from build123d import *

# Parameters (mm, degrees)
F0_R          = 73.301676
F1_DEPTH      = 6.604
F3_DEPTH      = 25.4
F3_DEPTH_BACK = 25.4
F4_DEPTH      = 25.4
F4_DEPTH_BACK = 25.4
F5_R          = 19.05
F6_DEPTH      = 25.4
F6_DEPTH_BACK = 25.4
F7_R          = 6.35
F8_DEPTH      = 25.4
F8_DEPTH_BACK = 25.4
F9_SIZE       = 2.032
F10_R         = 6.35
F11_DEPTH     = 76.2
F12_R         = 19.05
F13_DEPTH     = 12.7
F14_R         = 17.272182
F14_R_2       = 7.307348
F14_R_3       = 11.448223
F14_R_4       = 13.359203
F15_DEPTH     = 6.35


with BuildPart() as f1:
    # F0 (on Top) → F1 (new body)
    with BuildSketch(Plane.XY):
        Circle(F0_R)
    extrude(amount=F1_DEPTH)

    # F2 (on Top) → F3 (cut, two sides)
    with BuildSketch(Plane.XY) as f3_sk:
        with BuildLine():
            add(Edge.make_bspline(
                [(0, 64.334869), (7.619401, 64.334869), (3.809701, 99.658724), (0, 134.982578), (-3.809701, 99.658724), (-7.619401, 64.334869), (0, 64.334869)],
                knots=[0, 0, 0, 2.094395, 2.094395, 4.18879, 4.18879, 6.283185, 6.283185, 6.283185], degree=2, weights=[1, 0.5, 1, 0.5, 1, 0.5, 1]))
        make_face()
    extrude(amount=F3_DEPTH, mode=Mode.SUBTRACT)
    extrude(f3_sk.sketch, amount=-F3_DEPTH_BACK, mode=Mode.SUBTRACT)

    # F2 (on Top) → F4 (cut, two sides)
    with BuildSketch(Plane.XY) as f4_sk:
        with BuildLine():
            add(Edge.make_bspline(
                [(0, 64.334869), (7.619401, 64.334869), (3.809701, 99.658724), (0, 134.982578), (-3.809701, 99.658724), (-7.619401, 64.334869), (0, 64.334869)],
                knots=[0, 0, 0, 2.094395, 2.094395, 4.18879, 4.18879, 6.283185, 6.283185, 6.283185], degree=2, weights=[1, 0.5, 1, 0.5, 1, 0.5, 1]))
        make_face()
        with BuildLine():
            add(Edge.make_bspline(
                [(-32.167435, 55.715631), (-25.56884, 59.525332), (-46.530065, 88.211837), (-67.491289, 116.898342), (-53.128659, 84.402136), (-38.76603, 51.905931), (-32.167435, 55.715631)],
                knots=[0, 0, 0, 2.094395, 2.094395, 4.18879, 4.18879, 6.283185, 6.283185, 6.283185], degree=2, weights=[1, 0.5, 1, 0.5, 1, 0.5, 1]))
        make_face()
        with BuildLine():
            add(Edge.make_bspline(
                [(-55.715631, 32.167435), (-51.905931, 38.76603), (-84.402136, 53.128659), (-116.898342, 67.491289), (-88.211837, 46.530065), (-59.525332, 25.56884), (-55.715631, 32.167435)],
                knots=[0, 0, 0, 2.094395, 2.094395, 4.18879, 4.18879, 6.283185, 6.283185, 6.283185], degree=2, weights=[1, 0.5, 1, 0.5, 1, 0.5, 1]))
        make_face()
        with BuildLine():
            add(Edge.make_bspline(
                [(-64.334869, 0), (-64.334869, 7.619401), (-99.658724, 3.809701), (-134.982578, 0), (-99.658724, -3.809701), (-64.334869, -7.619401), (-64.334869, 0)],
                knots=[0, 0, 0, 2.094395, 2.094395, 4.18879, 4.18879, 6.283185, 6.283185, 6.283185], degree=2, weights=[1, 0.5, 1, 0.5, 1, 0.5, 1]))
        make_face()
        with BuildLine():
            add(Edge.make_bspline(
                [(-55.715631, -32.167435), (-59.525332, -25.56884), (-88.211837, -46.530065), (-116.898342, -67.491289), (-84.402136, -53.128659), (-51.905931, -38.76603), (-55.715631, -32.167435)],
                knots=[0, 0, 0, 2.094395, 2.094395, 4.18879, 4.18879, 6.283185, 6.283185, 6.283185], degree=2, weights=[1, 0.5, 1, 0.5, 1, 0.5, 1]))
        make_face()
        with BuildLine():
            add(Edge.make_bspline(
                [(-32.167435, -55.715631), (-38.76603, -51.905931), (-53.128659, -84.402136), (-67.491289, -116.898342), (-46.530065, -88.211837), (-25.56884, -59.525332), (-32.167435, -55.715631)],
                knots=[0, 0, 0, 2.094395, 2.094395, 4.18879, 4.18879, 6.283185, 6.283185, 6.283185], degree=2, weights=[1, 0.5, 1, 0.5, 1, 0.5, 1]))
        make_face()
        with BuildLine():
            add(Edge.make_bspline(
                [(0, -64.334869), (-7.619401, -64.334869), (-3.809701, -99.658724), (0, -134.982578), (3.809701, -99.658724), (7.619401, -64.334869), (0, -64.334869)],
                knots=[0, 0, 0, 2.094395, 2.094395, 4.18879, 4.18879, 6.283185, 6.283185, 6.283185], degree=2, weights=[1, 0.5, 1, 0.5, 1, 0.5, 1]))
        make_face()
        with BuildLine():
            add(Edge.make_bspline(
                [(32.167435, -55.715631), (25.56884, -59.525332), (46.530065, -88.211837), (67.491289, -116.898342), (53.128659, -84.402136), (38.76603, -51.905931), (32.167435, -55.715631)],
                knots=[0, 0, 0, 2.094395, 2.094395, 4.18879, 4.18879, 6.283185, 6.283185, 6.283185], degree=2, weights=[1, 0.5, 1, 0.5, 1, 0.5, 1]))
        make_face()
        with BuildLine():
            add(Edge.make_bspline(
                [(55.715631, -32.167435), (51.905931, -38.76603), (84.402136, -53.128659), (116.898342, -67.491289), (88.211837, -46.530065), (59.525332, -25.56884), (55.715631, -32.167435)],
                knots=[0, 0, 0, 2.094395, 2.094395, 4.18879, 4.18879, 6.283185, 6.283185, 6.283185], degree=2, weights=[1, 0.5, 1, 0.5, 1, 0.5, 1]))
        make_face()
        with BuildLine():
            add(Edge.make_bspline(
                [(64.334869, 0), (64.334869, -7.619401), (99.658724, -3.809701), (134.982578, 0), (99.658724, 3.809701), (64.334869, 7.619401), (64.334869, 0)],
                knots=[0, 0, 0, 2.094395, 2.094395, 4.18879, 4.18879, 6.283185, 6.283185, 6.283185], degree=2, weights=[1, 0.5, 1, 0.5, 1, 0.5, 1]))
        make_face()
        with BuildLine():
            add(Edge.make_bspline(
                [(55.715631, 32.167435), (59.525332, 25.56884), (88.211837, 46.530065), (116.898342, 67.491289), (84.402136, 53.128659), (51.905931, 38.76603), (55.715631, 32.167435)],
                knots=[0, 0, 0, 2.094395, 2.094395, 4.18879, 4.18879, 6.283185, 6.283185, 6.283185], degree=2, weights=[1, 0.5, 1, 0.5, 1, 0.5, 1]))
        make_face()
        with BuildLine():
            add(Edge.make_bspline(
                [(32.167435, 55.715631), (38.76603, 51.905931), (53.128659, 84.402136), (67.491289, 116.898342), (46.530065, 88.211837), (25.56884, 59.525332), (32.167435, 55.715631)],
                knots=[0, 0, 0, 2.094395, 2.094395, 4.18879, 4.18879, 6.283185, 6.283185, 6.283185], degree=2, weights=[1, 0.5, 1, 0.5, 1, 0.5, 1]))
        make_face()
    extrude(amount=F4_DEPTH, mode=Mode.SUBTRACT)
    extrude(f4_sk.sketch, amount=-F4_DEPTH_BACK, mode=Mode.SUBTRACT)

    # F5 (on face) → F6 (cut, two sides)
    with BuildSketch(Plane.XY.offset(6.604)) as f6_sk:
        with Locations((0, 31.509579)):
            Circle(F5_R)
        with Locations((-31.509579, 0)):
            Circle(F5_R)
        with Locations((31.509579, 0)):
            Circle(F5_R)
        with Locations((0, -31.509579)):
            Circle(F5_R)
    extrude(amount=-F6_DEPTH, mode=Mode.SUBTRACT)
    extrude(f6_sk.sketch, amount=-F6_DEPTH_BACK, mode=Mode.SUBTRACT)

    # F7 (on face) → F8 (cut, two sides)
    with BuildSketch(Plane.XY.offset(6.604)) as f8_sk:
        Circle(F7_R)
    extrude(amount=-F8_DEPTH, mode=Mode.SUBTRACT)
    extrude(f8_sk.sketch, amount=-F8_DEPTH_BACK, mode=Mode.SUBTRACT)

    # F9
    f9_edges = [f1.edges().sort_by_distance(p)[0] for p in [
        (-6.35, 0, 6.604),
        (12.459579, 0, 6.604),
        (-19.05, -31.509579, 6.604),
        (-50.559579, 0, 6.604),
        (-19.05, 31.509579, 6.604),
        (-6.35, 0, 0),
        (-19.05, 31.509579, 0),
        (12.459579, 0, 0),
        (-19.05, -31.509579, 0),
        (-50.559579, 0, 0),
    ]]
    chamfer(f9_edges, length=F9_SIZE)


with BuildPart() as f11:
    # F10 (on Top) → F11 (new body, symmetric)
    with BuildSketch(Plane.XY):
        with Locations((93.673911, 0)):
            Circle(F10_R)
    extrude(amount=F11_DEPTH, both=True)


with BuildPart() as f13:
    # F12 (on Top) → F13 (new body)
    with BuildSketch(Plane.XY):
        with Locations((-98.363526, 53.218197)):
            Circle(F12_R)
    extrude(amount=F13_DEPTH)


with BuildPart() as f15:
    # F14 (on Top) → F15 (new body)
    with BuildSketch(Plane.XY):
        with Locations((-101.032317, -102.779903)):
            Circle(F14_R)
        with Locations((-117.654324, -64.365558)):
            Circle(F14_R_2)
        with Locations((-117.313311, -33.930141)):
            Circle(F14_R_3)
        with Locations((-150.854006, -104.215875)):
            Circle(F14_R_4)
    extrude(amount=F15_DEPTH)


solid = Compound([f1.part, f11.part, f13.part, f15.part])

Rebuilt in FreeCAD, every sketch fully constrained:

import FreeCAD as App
import Part
import Sketcher
Q = App.Units.Quantity


def edges_at(feature, points):
    """Names of the edges that pass closest to the given points."""
    edges = feature.Shape.Edges
    near = lambda p: min(range(len(edges)), key=lambda i: edges[i].distToShape(Part.Vertex(*p))[0])
    return sorted({f"Edge{near(p) + 1}" for p in points})

doc = App.newDocument("Part")
body = doc.addObject("PartDesign::Body", "Body")

sketch1 = body.newObject("Sketcher::SketchObject", "Sketch")
sketch1.AttachmentSupport = (doc.getObject("XY_Plane"), [""])
sketch1.MapMode = "FlatFace"
sketch1.addGeometry(Part.Circle(App.Vector(0, 0, 0), App.Vector(0, 0, 1), 73), False)
sketch1.addConstraint(Sketcher.Constraint("Coincident", 0, 3, -1, 1))
sketch1.addConstraint(Sketcher.Constraint("Diameter", 0, Q("146.603352 mm")))
pad1 = body.newObject("PartDesign::Pad", "Pad")
pad1.Profile = sketch1
pad1.Length = Q("0.26 in")

sketch2 = body.newObject("Sketcher::SketchObject", "Sketch001")
sketch2.AttachmentSupport = (doc.getObject("XY_Plane"), [""])
sketch2.MapMode = "FlatFace"
sketch2.addGeometry(Part.BSplineCurve([App.Vector(0, 64.334869, 0), App.Vector(7.619401, 64.334869, 0), App.Vector(3.809701, 99.658724, 0), App.Vector(0, 134.982578, 0), App.Vector(-3.809701, 99.658724, 0), App.Vector(-7.619401, 64.334869, 0), App.Vector(0, 64.334869, 0)], [3, 2, 2, 3], [0, 2.094395, 4.18879, 6.283185], False, 2, [1, 0.5, 1, 0.5, 1, 0.5, 1], False), False)
sketch2.addConstraint(Sketcher.Constraint("Block", 0))
pocket1 = body.newObject("PartDesign::Pocket", "Pocket")
pocket1.Profile = sketch2
pocket1.Type = "ThroughAll"
pocket1.Midplane = True

sketch3 = body.newObject("Sketcher::SketchObject", "Sketch002")
sketch3.AttachmentSupport = (doc.getObject("XY_Plane"), [""])
sketch3.MapMode = "FlatFace"
sketch3.addGeometry(Part.BSplineCurve([App.Vector(0, 64.334869, 0), App.Vector(7.619401, 64.334869, 0), App.Vector(3.809701, 99.658724, 0), App.Vector(0, 134.982578, 0), App.Vector(-3.809701, 99.658724, 0), App.Vector(-7.619401, 64.334869, 0), App.Vector(0, 64.334869, 0)], [3, 2, 2, 3], [0, 2.094395, 4.18879, 6.283185], False, 2, [1, 0.5, 1, 0.5, 1, 0.5, 1], False), False)
sketch3.addGeometry(Part.BSplineCurve([App.Vector(-32.167435, 55.715631, 0), App.Vector(-25.56884, 59.525332, 0), App.Vector(-46.530065, 88.211837, 0), App.Vector(-67.491289, 116.898342, 0), App.Vector(-53.128659, 84.402136, 0), App.Vector(-38.76603, 51.905931, 0), App.Vector(-32.167435, 55.715631, 0)], [3, 2, 2, 3], [0, 2.094395, 4.18879, 6.283185], False, 2, [1, 0.5, 1, 0.5, 1, 0.5, 1], False), False)
sketch3.addGeometry(Part.BSplineCurve([App.Vector(-55.715631, 32.167435, 0), App.Vector(-51.905931, 38.76603, 0), App.Vector(-84.402136, 53.128659, 0), App.Vector(-116.898342, 67.491289, 0), App.Vector(-88.211837, 46.530065, 0), App.Vector(-59.525332, 25.56884, 0), App.Vector(-55.715631, 32.167435, 0)], [3, 2, 2, 3], [0, 2.094395, 4.18879, 6.283185], False, 2, [1, 0.5, 1, 0.5, 1, 0.5, 1], False), False)
sketch3.addGeometry(Part.BSplineCurve([App.Vector(-64.334869, 0, 0), App.Vector(-64.334869, 7.619401, 0), App.Vector(-99.658724, 3.809701, 0), App.Vector(-134.982578, 0, 0), App.Vector(-99.658724, -3.809701, 0), App.Vector(-64.334869, -7.619401, 0), App.Vector(-64.334869, 0, 0)], [3, 2, 2, 3], [0, 2.094395, 4.18879, 6.283185], False, 2, [1, 0.5, 1, 0.5, 1, 0.5, 1], False), False)
sketch3.addGeometry(Part.BSplineCurve([App.Vector(-55.715631, -32.167435, 0), App.Vector(-59.525332, -25.56884, 0), App.Vector(-88.211837, -46.530065, 0), App.Vector(-116.898342, -67.491289, 0), App.Vector(-84.402136, -53.128659, 0), App.Vector(-51.905931, -38.76603, 0), App.Vector(-55.715631, -32.167435, 0)], [3, 2, 2, 3], [0, 2.094395, 4.18879, 6.283185], False, 2, [1, 0.5, 1, 0.5, 1, 0.5, 1], False), False)
sketch3.addGeometry(Part.BSplineCurve([App.Vector(-32.167435, -55.715631, 0), App.Vector(-38.76603, -51.905931, 0), App.Vector(-53.128659, -84.402136, 0), App.Vector(-67.491289, -116.898342, 0), App.Vector(-46.530065, -88.211837, 0), App.Vector(-25.56884, -59.525332, 0), App.Vector(-32.167435, -55.715631, 0)], [3, 2, 2, 3], [0, 2.094395, 4.18879, 6.283185], False, 2, [1, 0.5, 1, 0.5, 1, 0.5, 1], False), False)
sketch3.addGeometry(Part.BSplineCurve([App.Vector(0, -64.334869, 0), App.Vector(-7.619401, -64.334869, 0), App.Vector(-3.809701, -99.658724, 0), App.Vector(0, -134.982578, 0), App.Vector(3.809701, -99.658724, 0), App.Vector(7.619401, -64.334869, 0), App.Vector(0, -64.334869, 0)], [3, 2, 2, 3], [0, 2.094395, 4.18879, 6.283185], False, 2, [1, 0.5, 1, 0.5, 1, 0.5, 1], False), False)
sketch3.addGeometry(Part.BSplineCurve([App.Vector(32.167435, -55.715631, 0), App.Vector(25.56884, -59.525332, 0), App.Vector(46.530065, -88.211837, 0), App.Vector(67.491289, -116.898342, 0), App.Vector(53.128659, -84.402136, 0), App.Vector(38.76603, -51.905931, 0), App.Vector(32.167435, -55.715631, 0)], [3, 2, 2, 3], [0, 2.094395, 4.18879, 6.283185], False, 2, [1, 0.5, 1, 0.5, 1, 0.5, 1], False), False)
sketch3.addGeometry(Part.BSplineCurve([App.Vector(55.715631, -32.167435, 0), App.Vector(51.905931, -38.76603, 0), App.Vector(84.402136, -53.128659, 0), App.Vector(116.898342, -67.491289, 0), App.Vector(88.211837, -46.530065, 0), App.Vector(59.525332, -25.56884, 0), App.Vector(55.715631, -32.167435, 0)], [3, 2, 2, 3], [0, 2.094395, 4.18879, 6.283185], False, 2, [1, 0.5, 1, 0.5, 1, 0.5, 1], False), False)
sketch3.addGeometry(Part.BSplineCurve([App.Vector(64.334869, 0, 0), App.Vector(64.334869, -7.619401, 0), App.Vector(99.658724, -3.809701, 0), App.Vector(134.982578, 0, 0), App.Vector(99.658724, 3.809701, 0), App.Vector(64.334869, 7.619401, 0), App.Vector(64.334869, 0, 0)], [3, 2, 2, 3], [0, 2.094395, 4.18879, 6.283185], False, 2, [1, 0.5, 1, 0.5, 1, 0.5, 1], False), False)
sketch3.addGeometry(Part.BSplineCurve([App.Vector(55.715631, 32.167435, 0), App.Vector(59.525332, 25.56884, 0), App.Vector(88.211837, 46.530065, 0), App.Vector(116.898342, 67.491289, 0), App.Vector(84.402136, 53.128659, 0), App.Vector(51.905931, 38.76603, 0), App.Vector(55.715631, 32.167435, 0)], [3, 2, 2, 3], [0, 2.094395, 4.18879, 6.283185], False, 2, [1, 0.5, 1, 0.5, 1, 0.5, 1], False), False)
sketch3.addGeometry(Part.BSplineCurve([App.Vector(32.167435, 55.715631, 0), App.Vector(38.76603, 51.905931, 0), App.Vector(53.128659, 84.402136, 0), App.Vector(67.491289, 116.898342, 0), App.Vector(46.530065, 88.211837, 0), App.Vector(25.56884, 59.525332, 0), App.Vector(32.167435, 55.715631, 0)], [3, 2, 2, 3], [0, 2.094395, 4.18879, 6.283185], False, 2, [1, 0.5, 1, 0.5, 1, 0.5, 1], False), False)
sketch3.addConstraint(Sketcher.Constraint("Block", 0))
sketch3.addConstraint(Sketcher.Constraint("Block", 1))
sketch3.addConstraint(Sketcher.Constraint("Block", 2))
sketch3.addConstraint(Sketcher.Constraint("Block", 3))
sketch3.addConstraint(Sketcher.Constraint("Block", 4))
sketch3.addConstraint(Sketcher.Constraint("Block", 5))
sketch3.addConstraint(Sketcher.Constraint("Block", 6))
sketch3.addConstraint(Sketcher.Constraint("Block", 7))
sketch3.addConstraint(Sketcher.Constraint("Block", 8))
sketch3.addConstraint(Sketcher.Constraint("Block", 9))
sketch3.addConstraint(Sketcher.Constraint("Block", 10))
sketch3.addConstraint(Sketcher.Constraint("Block", 11))
pocket2 = body.newObject("PartDesign::Pocket", "Pocket001")
pocket2.Profile = sketch3
pocket2.Type = "ThroughAll"
pocket2.Midplane = True

sketch4 = body.newObject("Sketcher::SketchObject", "Sketch003")
sketch4.AttachmentSupport = (doc.getObject("XY_Plane"), [""])
sketch4.MapMode = "FlatFace"
sketch4.AttachmentOffset = App.Placement(App.Vector(0, 0, 0.26 * 25.4), App.Rotation())
sketch4.addGeometry(Part.Circle(App.Vector(0, 32, 0), App.Vector(0, 0, 1), 19), False)
sketch4.addGeometry(Part.Circle(App.Vector(-32, 0, 0), App.Vector(0, 0, 1), 19), False)
sketch4.addGeometry(Part.Circle(App.Vector(32, 0, 0), App.Vector(0, 0, 1), 19), False)
sketch4.addGeometry(Part.Circle(App.Vector(0, -32, 0), App.Vector(0, 0, 1), 19), False)
sketch4.addConstraint(Sketcher.Constraint("Equal", 0, 1))
sketch4.addConstraint(Sketcher.Constraint("Equal", 1, 2))
sketch4.addConstraint(Sketcher.Constraint("Equal", 2, 3))
sketch4.addConstraint(Sketcher.Constraint("Symmetric", 1, 3, 2, 3, -1, 1))
sketch4.addConstraint(Sketcher.Constraint("Symmetric", 0, 3, 3, 3, -1, 1))
sketch4.addConstraint(Sketcher.Constraint("PointOnObject", 0, 3, -2))
sketch4.addConstraint(Sketcher.Constraint("PointOnObject", 1, 3, -1))
sketch4.addConstraint(Sketcher.Constraint("Diameter", 0, Q("1.5 in")))
sketch4.addConstraint(Sketcher.Constraint("DistanceY", -1, 1, 0, 3, Q("31.509579 mm")))
sketch4.addConstraint(Sketcher.Constraint("DistanceX", 1, 3, -1, 1, Q("31.509579 mm")))
pocket3 = body.newObject("PartDesign::Pocket", "Pocket002")
pocket3.Profile = sketch4
pocket3.Length = Q("1 in")
pocket4 = body.newObject("PartDesign::Pocket", "Pocket003")
pocket4.Profile = sketch4
pocket4.Length = Q("1 in")

sketch5 = body.newObject("Sketcher::SketchObject", "Sketch004")
sketch5.AttachmentSupport = (doc.getObject("XY_Plane"), [""])
sketch5.MapMode = "FlatFace"
sketch5.AttachmentOffset = App.Placement(App.Vector(0, 0, 0.26 * 25.4), App.Rotation())
sketch5.addGeometry(Part.Circle(App.Vector(0, 0, 0), App.Vector(0, 0, 1), 6), False)
sketch5.addConstraint(Sketcher.Constraint("Coincident", 0, 3, -1, 1))
sketch5.addConstraint(Sketcher.Constraint("Diameter", 0, Q("0.5 in")))
pocket5 = body.newObject("PartDesign::Pocket", "Pocket004")
pocket5.Profile = sketch5
pocket5.Length = Q("1 in")
pocket6 = body.newObject("PartDesign::Pocket", "Pocket005")
pocket6.Profile = sketch5
pocket6.Length = Q("1 in")
doc.recompute()

chamfer = body.newObject("PartDesign::Chamfer", "Chamfer")
chamfer.Base = (pocket6, edges_at(pocket6, [
    (-6.35, 0, 6.604),
    (12.46, 0, 6.604),
    (-19.05, -31.51, 6.604),
    (-50.56, 0, 6.604),
    (-19.05, 31.51, 6.604),
    (-6.35, 0, 0),
    (-19.05, 31.51, 0),
    (12.46, 0, 0),
    (-19.05, -31.51, 0),
    (-50.56, 0, 0),
]))
chamfer.Size = Q("0.08 in")
body2 = doc.addObject("PartDesign::Body", "Body001")

sketch6 = body2.newObject("Sketcher::SketchObject", "Sketch005")
sketch6.AttachmentSupport = (doc.getObject("XY_Plane001"), [""])
sketch6.MapMode = "FlatFace"
sketch6.addGeometry(Part.Circle(App.Vector(94, 0, 0), App.Vector(0, 0, 1), 6), False)
sketch6.addConstraint(Sketcher.Constraint("PointOnObject", 0, 3, -1))
sketch6.addConstraint(Sketcher.Constraint("Diameter", 0, Q("0.5 in")))
sketch6.addConstraint(Sketcher.Constraint("DistanceX", -1, 1, 0, 3, Q("93.673911 mm")))
pad2 = body2.newObject("PartDesign::Pad", "Pad001")
pad2.Profile = sketch6
pad2.Length = Q("6 in")
pad2.Midplane = True
body3 = doc.addObject("PartDesign::Body", "Body002")

sketch7 = body3.newObject("Sketcher::SketchObject", "Sketch006")
sketch7.AttachmentSupport = (doc.getObject("XY_Plane002"), [""])
sketch7.MapMode = "FlatFace"
sketch7.addGeometry(Part.Circle(App.Vector(-98, 53, 0), App.Vector(0, 0, 1), 19), False)
sketch7.addConstraint(Sketcher.Constraint("Diameter", 0, Q("1.5 in")))
sketch7.addConstraint(Sketcher.Constraint("DistanceX", 0, 3, -1, 1, Q("98.363526 mm")))
sketch7.addConstraint(Sketcher.Constraint("DistanceY", -1, 1, 0, 3, Q("53.218197 mm")))
pad3 = body3.newObject("PartDesign::Pad", "Pad002")
pad3.Profile = sketch7
pad3.Length = Q("0.5 in")
body4 = doc.addObject("PartDesign::Body", "Body003")
body4.AllowCompound = True

sketch8 = body4.newObject("Sketcher::SketchObject", "Sketch007")
sketch8.AttachmentSupport = (doc.getObject("XY_Plane003"), [""])
sketch8.MapMode = "FlatFace"
sketch8.addGeometry(Part.Circle(App.Vector(-101, -103, 0), App.Vector(0, 0, 1), 17), False)
sketch8.addGeometry(Part.Circle(App.Vector(-118, -64, 0), App.Vector(0, 0, 1), 7), False)
sketch8.addGeometry(Part.Circle(App.Vector(-117, -34, 0), App.Vector(0, 0, 1), 11), False)
sketch8.addGeometry(Part.Circle(App.Vector(-151, -104, 0), App.Vector(0, 0, 1), 13), False)
sketch8.addConstraint(Sketcher.Constraint("Diameter", 0, Q("34.544364 mm")))
sketch8.addConstraint(Sketcher.Constraint("Diameter", 1, Q("14.614696 mm")))
sketch8.addConstraint(Sketcher.Constraint("Diameter", 2, Q("22.896446 mm")))
sketch8.addConstraint(Sketcher.Constraint("Diameter", 3, Q("26.718406 mm")))
sketch8.addConstraint(Sketcher.Constraint("DistanceX", 3, 3, 2, 3, Q("1.3204998 in")))
sketch8.addConstraint(Sketcher.Constraint("DistanceX", 2, 3, -1, 1, Q("117.313311 mm")))
sketch8.addConstraint(Sketcher.Constraint("DistanceY", 2, 3, -1, 1, Q("33.930141 mm")))
sketch8.addConstraint(Sketcher.Constraint("DistanceY", 0, 3, 2, 3, Q("68.849762 mm")))
sketch8.addConstraint(Sketcher.Constraint("DistanceX", 3, 3, 0, 3, Q("49.821689 mm")))
sketch8.addConstraint(Sketcher.Constraint("DistanceY", 3, 3, 0, 3, Q("1.435972 mm")))
sketch8.addConstraint(Sketcher.Constraint("DistanceX", 3, 3, 1, 3, Q("33.199682 mm")))
sketch8.addConstraint(Sketcher.Constraint("DistanceY", 1, 3, -1, 1, Q("64.365558 mm")))
pad4 = body4.newObject("PartDesign::Pad", "Pad003")
pad4.Profile = sketch8
pad4.Length = Q("0.25 in")

doc.recompute()
